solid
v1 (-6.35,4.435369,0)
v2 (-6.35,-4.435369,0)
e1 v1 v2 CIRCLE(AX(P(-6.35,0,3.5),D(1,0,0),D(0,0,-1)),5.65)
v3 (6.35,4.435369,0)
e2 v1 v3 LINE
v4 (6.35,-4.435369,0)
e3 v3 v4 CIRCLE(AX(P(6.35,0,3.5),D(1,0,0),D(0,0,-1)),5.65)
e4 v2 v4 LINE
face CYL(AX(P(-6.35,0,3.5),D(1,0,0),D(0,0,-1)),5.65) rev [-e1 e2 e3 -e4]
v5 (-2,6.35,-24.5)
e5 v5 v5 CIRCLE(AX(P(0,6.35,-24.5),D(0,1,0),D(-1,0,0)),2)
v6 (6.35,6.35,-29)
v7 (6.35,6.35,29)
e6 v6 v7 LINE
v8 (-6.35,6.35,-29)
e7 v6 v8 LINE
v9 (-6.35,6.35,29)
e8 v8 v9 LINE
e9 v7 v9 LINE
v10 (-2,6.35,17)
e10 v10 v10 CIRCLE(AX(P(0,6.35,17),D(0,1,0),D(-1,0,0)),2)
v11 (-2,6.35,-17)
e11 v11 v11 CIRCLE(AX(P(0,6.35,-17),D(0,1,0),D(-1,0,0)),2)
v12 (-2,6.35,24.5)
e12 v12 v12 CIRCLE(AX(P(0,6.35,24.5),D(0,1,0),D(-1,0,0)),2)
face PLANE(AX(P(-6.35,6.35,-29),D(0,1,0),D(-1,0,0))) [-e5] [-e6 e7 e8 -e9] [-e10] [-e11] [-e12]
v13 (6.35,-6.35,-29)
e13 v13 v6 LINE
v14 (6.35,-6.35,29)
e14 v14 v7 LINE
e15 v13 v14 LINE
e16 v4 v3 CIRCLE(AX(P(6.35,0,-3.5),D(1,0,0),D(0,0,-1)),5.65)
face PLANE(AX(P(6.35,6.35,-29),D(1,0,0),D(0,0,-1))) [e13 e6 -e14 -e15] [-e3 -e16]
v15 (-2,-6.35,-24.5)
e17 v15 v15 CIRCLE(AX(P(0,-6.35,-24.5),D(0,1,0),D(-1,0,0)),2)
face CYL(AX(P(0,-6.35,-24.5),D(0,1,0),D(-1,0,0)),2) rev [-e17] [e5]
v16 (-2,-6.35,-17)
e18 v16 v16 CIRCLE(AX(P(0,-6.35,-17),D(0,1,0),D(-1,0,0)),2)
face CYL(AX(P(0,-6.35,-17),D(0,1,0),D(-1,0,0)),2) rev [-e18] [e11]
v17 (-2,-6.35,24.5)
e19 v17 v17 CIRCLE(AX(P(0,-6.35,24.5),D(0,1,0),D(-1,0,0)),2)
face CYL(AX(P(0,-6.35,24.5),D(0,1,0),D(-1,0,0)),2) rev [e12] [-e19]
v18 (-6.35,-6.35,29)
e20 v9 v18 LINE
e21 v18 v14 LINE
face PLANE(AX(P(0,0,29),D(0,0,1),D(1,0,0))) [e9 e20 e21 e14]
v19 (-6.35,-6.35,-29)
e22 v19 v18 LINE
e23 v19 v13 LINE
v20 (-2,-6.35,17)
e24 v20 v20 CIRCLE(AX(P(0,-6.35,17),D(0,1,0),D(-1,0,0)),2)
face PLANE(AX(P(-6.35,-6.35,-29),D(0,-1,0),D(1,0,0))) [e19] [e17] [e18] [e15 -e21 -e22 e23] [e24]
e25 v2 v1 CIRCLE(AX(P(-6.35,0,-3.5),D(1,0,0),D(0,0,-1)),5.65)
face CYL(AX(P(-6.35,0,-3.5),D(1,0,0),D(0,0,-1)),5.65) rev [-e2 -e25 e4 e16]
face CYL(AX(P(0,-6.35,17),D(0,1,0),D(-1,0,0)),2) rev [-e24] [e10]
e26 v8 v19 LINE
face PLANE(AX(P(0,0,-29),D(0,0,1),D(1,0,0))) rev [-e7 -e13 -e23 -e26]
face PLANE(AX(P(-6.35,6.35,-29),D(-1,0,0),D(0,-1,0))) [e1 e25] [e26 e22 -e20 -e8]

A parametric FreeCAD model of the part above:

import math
import FreeCAD as App
import Part
import Sketcher

doc = App.newDocument("Part")
body = doc.addObject("PartDesign::Body", "Body")

sketch1 = body.newObject("Sketcher::SketchObject", "Sketch")
sketch1.AttachmentSupport = (doc.getObject("XY_Plane"), [""])
sketch1.MapMode = "FlatFace"
sketch1.addGeometry(Part.LineSegment(App.Vector(-6, 6, 0), App.Vector(-6, -6, 0)), False)
sketch1.addGeometry(Part.LineSegment(App.Vector(-6, -6, 0), App.Vector(6, -6, 0)), False)
sketch1.addGeometry(Part.LineSegment(App.Vector(6, -6, 0), App.Vector(6, 6, 0)), False)
sketch1.addGeometry(Part.LineSegment(App.Vector(6, 6, 0), App.Vector(-6, 6, 0)), False)
sketch1.addConstraint(Sketcher.Constraint("Coincident", 0, 2, 1, 1))
sketch1.addConstraint(Sketcher.Constraint("Coincident", 1, 2, 2, 1))
sketch1.addConstraint(Sketcher.Constraint("Coincident", 2, 2, 3, 1))
sketch1.addConstraint(Sketcher.Constraint("Coincident", 3, 2, 0, 1))
sketch1.addConstraint(Sketcher.Constraint("Vertical", 0))
sketch1.addConstraint(Sketcher.Constraint("Horizontal", 1))
sketch1.addConstraint(Sketcher.Constraint("Vertical", 2))
sketch1.addConstraint(Sketcher.Constraint("Horizontal", 3))
sketch1.addConstraint(Sketcher.Constraint("Symmetric", 0, 2, 2, 2, -1, 1))
sketch1.addConstraint(Sketcher.Constraint("Equal", 3, 0))
sketch1.addConstraint(Sketcher.Constraint("DistanceX", 1, 1, 1, 2, 12.7))
pad1 = body.newObject("PartDesign::Pad", "Pad")
pad1.Profile = sketch1
pad1.Length = 58
pad1.Midplane = True

sketch2 = body.newObject("Sketcher::SketchObject", "Sketch001")
sketch2.AttachmentSupport = (doc.getObject("XZ_Plane"), [""])
sketch2.MapMode = "FlatFace"
sketch2.AttachmentOffset = App.Placement(App.Vector(0, 0, -6.35), App.Rotation())
sketch2.addGeometry(Part.Circle(App.Vector(0, -24.5, 0), App.Vector(0, 0, 1), 2), False)
sketch2.addGeometry(Part.Circle(App.Vector(0, -17, 0), App.Vector(0, 0, 1), 2), False)
sketch2.addGeometry(Part.Circle(App.Vector(0, 17, 0), App.Vector(0, 0, 1), 2), False)
sketch2.addGeometry(Part.Circle(App.Vector(0, 24.5, 0), App.Vector(0, 0, 1), 2), False)
sketch2.addConstraint(Sketcher.Constraint("Equal", 0, 1))
sketch2.addConstraint(Sketcher.Constraint("Equal", 1, 2))
sketch2.addConstraint(Sketcher.Constraint("Equal", 2, 3))
sketch2.addConstraint(Sketcher.Constraint("Symmetric", 1, 3, 2, 3, -1, 1))
sketch2.addConstraint(Sketcher.Constraint("Symmetric", 0, 3, 3, 3, -1, 1))
sketch2.addConstraint(Sketcher.Constraint("PointOnObject", 0, 3, -2))
sketch2.addConstraint(Sketcher.Constraint("PointOnObject", 1, 3, -2))
sketch2.addConstraint(Sketcher.Constraint("Diameter", 0, 4.0))
sketch2.addConstraint(Sketcher.Constraint("DistanceY", 1, 3, -1, 1, 17.0))
sketch2.addConstraint(Sketcher.Constraint("DistanceY", 0, 3, 3, 3, 49.0))
pocket1 = body.newObject("PartDesign::Pocket", "Pocket")
pocket1.Profile = sketch2
pocket1.Type = "ThroughAll"
pocket1.Reversed = True

sketch3 = body.newObject("Sketcher::SketchObject", "Sketch002")
sketch3.AttachmentSupport = (doc.getObject("YZ_Plane"), [""])
sketch3.MapMode = "FlatFace"
sketch3.AttachmentOffset = App.Placement(App.Vector(0, 0, 6.35), App.Rotation())
sketch3.addGeometry(Part.ArcOfCircle(Part.Circle(App.Vector(0, 4, 0), App.Vector(0, 0, 1), 6), math.radians(-38), math.radians(218)), False)
sketch3.addGeometry(Part.ArcOfCircle(Part.Circle(App.Vector(0, -4, 0), App.Vector(0, 0, 1), 6), math.radians(142), math.radians(398)), False)
sketch3.addConstraint(Sketcher.Constraint("Coincident", 0, 1, 1, 2))
sketch3.addConstraint(Sketcher.Constraint("Coincident", 1, 1, 0, 2))
sketch3.addConstraint(Sketcher.Constraint("Equal", 0, 1))
sketch3.addConstraint(Sketcher.Constraint("Symmetric", 0, 3, 1, 3, -1, 1))
sketch3.addConstraint(Sketcher.Constraint("PointOnObject", 0, 3, -2))
sketch3.addConstraint(Sketcher.Constraint("Radius", 0, 5.65))
sketch3.addConstraint(Sketcher.Constraint("DistanceY", 1, 3, 0, 3, 7.0))
pocket2 = body.newObject("PartDesign::Pocket", "Pocket001")
pocket2.Profile = sketch3
pocket2.Type = "ThroughAll"

doc.recompute()
